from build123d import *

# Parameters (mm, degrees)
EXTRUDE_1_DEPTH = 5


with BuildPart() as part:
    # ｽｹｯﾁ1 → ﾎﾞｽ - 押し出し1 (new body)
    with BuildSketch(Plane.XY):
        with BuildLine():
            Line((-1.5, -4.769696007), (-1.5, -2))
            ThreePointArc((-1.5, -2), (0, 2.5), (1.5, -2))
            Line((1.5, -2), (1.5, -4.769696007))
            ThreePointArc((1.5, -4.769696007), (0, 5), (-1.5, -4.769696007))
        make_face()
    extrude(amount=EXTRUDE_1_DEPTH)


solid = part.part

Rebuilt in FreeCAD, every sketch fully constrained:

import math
import FreeCAD as App
import Part
import Sketcher

doc = App.newDocument("Part")
body = doc.addObject("PartDesign::Body", "Body")

# Sketch on XY plane
sketch1 = body.newObject("Sketcher::SketchObject", "Sketch")
sketch1.AttachmentSupport = (doc.getObject("XY_Plane"), [""])
sketch1.MapMode = "FlatFace"
sketch1.addGeometry([
    Part.LineSegment(App.Vector(-1.5, -4.769696, 0), App.Vector(-1.5, -2, 0)),
    Part.ArcOfCircle(Part.Circle(App.Vector(0, 0, 0), App.Vector(0, 0, 1), 2.5), math.radians(-53.130102), math.radians(233.130102)),
    Part.LineSegment(App.Vector(1.5, -2, 0), App.Vector(1.5, -4.769696, 0)),
    Part.ArcOfCircle(Part.Circle(App.Vector(0, 0, 0), App.Vector(0, 0, 1), 5), math.radians(-72.542397), math.radians(252.542397)),
], False)
sketch1.addConstraint([
    Sketcher.Constraint("Coincident", 0, 2, 1, 2),
    Sketcher.Constraint("Coincident", 1, 1, 2, 1),
    Sketcher.Constraint("Coincident", 2, 2, 3, 1),
    Sketcher.Constraint("Coincident", 3, 2, 0, 1),
    Sketcher.Constraint("Vertical", 0),
    Sketcher.Constraint("Vertical", 2),
    Sketcher.Constraint("Coincident", 1, 3, -1, 1),
    Sketcher.Constraint("Coincident", 3, 3, -1, 1),
    Sketcher.Constraint("Horizontal", 0, 2, 1, 1),
    Sketcher.Constraint("Radius", 3, 5.0),
    Sketcher.Constraint("Radius", 1, 2.5),
    Sketcher.Constraint("DistanceY", 0, 2, -1, 1, 2.0),
])
pad1 = body.newObject("PartDesign::Pad", "Pad")
pad1.Profile = sketch1
pad1.Length = 5

doc.recompute()
